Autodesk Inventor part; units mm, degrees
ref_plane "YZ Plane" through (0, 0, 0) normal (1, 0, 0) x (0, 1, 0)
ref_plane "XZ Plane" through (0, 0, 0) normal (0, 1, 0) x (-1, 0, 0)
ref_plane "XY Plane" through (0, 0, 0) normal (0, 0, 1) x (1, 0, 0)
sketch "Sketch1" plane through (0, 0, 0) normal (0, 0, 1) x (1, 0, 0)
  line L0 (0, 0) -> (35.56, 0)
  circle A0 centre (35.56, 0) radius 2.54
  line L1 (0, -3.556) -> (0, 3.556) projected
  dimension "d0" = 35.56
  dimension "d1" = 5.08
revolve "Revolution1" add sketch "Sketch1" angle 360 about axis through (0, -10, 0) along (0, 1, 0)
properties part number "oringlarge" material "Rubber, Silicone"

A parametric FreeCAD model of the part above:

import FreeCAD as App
import Part
import Sketcher
Q = App.Units.Quantity

doc = App.newDocument("Part")
body = doc.addObject("PartDesign::Body", "Body")

# Sketch on XY plane
sketch1 = body.newObject("Sketcher::SketchObject", "Sketch")
sketch1.AttachmentSupport = (doc.getObject("XY_Plane"), [""])
sketch1.MapMode = "FlatFace"
sketch1.addGeometry(Part.Circle(App.Vector(35.6, 0, 0), App.Vector(0, 0, 1), 2.5), False)
sketch1.addConstraint(Sketcher.Constraint("PointOnObject", 0, 3, -1))
sketch1.addConstraint(Sketcher.Constraint("Diameter", 0, Q("0.2 in")))
sketch1.addConstraint(Sketcher.Constraint("DistanceX", -1, 1, 0, 3, Q("1.4 in")))
revolution = body.newObject("PartDesign::Revolution", "Revolution")
revolution.Profile = sketch1
revolution.ReferenceAxis = (sketch1, ["V_Axis"])
revolution.Angle = 360

doc.recompute()
